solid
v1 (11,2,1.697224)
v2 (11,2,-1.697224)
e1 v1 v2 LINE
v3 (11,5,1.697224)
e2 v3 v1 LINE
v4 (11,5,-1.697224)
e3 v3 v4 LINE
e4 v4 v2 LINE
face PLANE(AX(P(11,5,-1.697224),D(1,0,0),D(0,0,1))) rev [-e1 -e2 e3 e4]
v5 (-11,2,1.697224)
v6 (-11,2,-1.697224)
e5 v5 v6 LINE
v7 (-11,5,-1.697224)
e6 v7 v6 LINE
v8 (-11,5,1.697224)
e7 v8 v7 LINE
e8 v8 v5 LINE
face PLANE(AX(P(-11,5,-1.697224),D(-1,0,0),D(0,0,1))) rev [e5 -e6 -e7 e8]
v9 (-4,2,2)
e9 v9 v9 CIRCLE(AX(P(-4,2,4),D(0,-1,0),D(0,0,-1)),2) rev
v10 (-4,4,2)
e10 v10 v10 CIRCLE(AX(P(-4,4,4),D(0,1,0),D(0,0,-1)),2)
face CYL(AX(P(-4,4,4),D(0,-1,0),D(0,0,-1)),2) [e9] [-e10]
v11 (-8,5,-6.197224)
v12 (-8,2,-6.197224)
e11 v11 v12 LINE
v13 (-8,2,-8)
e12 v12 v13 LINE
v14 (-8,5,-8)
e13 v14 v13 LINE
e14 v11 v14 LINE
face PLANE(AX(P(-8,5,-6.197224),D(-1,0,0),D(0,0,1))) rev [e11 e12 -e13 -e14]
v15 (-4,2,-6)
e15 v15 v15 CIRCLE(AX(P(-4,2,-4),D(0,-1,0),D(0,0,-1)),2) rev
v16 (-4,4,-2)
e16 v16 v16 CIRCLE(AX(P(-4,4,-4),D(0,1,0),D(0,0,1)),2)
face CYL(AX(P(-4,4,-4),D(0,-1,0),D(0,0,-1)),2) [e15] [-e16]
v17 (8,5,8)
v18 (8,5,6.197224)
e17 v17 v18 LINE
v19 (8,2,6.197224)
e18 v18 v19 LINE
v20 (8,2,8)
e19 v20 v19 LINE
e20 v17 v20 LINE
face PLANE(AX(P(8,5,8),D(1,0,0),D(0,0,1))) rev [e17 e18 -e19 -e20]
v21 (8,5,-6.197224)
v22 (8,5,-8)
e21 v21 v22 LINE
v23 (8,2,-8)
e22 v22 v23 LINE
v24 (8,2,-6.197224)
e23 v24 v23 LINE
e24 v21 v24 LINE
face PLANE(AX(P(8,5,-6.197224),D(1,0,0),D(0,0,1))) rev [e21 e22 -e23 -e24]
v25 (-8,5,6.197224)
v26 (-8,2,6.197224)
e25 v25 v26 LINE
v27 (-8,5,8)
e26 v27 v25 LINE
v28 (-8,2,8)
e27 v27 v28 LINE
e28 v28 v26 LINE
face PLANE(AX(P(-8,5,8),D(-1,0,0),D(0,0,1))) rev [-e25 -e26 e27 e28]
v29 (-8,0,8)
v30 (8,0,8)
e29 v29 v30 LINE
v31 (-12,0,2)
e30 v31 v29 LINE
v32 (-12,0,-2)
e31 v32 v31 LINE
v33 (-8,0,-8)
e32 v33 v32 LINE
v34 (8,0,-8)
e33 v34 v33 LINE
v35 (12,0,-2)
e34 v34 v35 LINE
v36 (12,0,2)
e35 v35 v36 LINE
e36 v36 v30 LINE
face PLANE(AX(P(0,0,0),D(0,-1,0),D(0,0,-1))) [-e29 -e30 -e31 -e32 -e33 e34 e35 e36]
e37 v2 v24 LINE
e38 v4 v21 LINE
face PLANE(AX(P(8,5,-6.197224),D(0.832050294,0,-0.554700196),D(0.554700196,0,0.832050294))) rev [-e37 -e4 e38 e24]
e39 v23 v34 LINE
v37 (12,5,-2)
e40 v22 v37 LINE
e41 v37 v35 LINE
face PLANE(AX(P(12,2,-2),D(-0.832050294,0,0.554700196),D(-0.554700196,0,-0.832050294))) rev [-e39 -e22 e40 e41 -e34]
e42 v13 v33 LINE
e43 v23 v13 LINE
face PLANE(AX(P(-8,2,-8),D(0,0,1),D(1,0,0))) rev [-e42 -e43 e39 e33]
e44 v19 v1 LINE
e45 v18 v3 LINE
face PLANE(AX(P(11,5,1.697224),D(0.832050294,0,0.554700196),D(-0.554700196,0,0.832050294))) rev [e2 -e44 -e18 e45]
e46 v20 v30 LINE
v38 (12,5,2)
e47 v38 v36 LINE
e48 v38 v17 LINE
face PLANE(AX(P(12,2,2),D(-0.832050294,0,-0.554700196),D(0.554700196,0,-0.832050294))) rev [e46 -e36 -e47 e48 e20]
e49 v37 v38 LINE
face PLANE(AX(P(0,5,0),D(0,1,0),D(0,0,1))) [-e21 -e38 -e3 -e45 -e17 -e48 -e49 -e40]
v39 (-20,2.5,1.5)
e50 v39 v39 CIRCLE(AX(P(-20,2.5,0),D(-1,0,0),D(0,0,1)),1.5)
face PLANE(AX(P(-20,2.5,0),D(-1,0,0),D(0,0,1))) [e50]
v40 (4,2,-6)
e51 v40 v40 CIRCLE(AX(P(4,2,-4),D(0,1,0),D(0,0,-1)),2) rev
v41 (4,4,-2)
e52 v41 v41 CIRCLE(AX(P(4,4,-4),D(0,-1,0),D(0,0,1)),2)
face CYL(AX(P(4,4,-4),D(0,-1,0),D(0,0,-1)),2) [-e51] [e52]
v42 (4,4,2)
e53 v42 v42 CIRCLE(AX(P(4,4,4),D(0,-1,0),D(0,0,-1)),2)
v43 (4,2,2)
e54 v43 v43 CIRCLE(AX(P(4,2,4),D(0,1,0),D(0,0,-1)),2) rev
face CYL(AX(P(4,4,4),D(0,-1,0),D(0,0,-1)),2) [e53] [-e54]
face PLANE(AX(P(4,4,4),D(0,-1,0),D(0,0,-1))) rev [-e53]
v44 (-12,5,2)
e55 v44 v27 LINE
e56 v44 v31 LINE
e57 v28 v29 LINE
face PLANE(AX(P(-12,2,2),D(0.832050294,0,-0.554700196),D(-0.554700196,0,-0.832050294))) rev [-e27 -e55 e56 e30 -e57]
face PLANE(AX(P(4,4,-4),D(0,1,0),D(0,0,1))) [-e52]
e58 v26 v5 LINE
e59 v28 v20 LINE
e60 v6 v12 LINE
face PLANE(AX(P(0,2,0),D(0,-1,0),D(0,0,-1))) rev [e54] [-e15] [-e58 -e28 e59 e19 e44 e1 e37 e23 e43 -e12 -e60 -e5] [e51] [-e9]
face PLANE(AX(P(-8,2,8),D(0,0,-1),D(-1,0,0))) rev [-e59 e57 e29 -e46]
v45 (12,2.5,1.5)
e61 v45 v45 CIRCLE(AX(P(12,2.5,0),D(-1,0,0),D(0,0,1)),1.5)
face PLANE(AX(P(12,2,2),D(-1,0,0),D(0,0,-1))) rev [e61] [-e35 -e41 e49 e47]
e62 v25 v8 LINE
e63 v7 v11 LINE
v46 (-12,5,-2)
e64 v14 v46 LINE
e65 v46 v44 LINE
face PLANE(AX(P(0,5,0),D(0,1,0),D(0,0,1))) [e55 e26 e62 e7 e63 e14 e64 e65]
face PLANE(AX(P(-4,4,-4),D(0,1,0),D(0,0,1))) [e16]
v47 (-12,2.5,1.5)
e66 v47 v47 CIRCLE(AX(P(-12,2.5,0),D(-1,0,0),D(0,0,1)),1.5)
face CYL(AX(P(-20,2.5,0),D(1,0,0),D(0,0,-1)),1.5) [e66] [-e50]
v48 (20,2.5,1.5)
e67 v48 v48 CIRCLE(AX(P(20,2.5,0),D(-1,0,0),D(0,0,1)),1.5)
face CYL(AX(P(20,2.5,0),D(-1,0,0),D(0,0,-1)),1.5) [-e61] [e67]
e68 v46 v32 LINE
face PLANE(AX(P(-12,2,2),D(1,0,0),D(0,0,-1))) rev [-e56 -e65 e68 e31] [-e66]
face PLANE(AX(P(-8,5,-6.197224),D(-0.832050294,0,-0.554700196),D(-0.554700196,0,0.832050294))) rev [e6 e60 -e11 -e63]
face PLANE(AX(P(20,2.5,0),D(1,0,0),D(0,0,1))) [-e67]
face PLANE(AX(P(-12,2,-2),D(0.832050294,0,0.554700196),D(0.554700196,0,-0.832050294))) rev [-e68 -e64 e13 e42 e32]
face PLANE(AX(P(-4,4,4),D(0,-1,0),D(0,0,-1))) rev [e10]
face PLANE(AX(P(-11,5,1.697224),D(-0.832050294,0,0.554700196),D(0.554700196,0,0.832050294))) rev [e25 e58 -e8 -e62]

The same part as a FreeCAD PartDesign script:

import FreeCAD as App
import Part
import Sketcher
from FreeCAD import Vector

doc = App.newDocument("Part")
body = doc.addObject("PartDesign::Body", "Body")

# Sketch on XZ plane
sketch1 = body.newObject("Sketcher::SketchObject", "Sketch")
sketch1.AttachmentSupport = (doc.getObject("XZ_Plane"), [""])
sketch1.MapMode = "FlatFace"
sketch1.addGeometry([
    Part.LineSegment(Vector(-12, -2, 0), Vector(-12, 2, 0)),  # 0
    Part.LineSegment(Vector(-12, 2, 0), Vector(-8, 8, 0)),  # 1
    Part.LineSegment(Vector(-8, 8, 0), Vector(0, 8, 0)),  # 2
    Part.LineSegment(Vector(0, 8, 0), Vector(0, -8, 0)),  # 3
    Part.LineSegment(Vector(0, -8, 0), Vector(-8, -8, 0)),  # 4
    Part.LineSegment(Vector(-8, -8, 0), Vector(-12, -2, 0)),  # 5
], False)
sketch1.addConstraint([
    Sketcher.Constraint("Coincident", 0, 2, 1, 1),
    Sketcher.Constraint("Coincident", 1, 2, 2, 1),
    Sketcher.Constraint("Coincident", 2, 2, 3, 1),
    Sketcher.Constraint("Coincident", 3, 2, 4, 1),
    Sketcher.Constraint("Coincident", 4, 2, 5, 1),
    Sketcher.Constraint("Coincident", 5, 2, 0, 1),
    Sketcher.Constraint("Vertical", 0),
    Sketcher.Constraint("Horizontal", 2),
    Sketcher.Constraint("Vertical", 3),
    Sketcher.Constraint("Horizontal", 4),
    Sketcher.Constraint("Symmetric", 2, 2, 3, 2, -1, 1),
    Sketcher.Constraint("Vertical", 1, 2, 4, 2),
    Sketcher.Constraint("Equal", 1, 5),
    Sketcher.Constraint("DistanceX", 2, 1, 2, 2, 8.0),
    Sketcher.Constraint("DistanceY", 0, 1, 0, 2, 4.0),
    Sketcher.Constraint("DistanceY", 3, 2, 3, 1, 16.0),
    Sketcher.Constraint("DistanceX", 0, 2, -1, 1, 12.0),
])
pad1 = body.newObject("PartDesign::Pad", "Pad")
pad1.Profile = sketch1
pad1.Length = 2
pad1.Reversed = True

# Sketch on XZ plane
sketch2 = body.newObject("Sketcher::SketchObject", "Sketch001")
sketch2.AttachmentSupport = (doc.getObject("XZ_Plane"), [""])
sketch2.MapMode = "FlatFace"
sketch2.AttachmentOffset = App.Placement(Vector(0, 0, -2), App.Rotation())
sketch2.addGeometry([
    Part.Circle(Vector(-4, -4, 0), Vector(0, 0, 1), 2),
    Part.Circle(Vector(-4, 4, 0), Vector(0, 0, 1), 2),
], False)
sketch2.addConstraint([
    Sketcher.Constraint("Equal", 0, 1),
    Sketcher.Constraint("Symmetric", 0, 3, 1, 3, -1),
    Sketcher.Constraint("Diameter", 0, 4.0),
    Sketcher.Constraint("DistanceX", 0, 3, -1, 1, 4.0),
    Sketcher.Constraint("DistanceY", 0, 3, -1, 1, 4.0),
])
pad2 = body.newObject("PartDesign::Pad", "Pad001")
pad2.Profile = sketch2
pad2.Length = 2
pad2.Reversed = True

# Sketch on XZ plane
sketch3 = body.newObject("Sketcher::SketchObject", "Sketch002")
sketch3.AttachmentSupport = (doc.getObject("XZ_Plane"), [""])
sketch3.MapMode = "FlatFace"
sketch3.AttachmentOffset = App.Placement(Vector(0, 0, -2), App.Rotation())
sketch3.addGeometry([
    Part.LineSegment(Vector(-12, 2, 0), Vector(-8, 8, 0)),  # 0
    Part.LineSegment(Vector(-8, 8, 0), Vector(-8, 6.2, 0)),  # 1
    Part.LineSegment(Vector(-8, 6.2, 0), Vector(-11, 1.7, 0)),  # 2
    Part.LineSegment(Vector(-11, 1.7, 0), Vector(-11, -1.7, 0)),  # 3
    Part.LineSegment(Vector(-11, -1.7, 0), Vector(-8, -6.2, 0)),  # 4
    Part.LineSegment(Vector(-8, -6.2, 0), Vector(-8, -8, 0)),  # 5
    Part.LineSegment(Vector(-8, -8, 0), Vector(-12, -2, 0)),  # 6
    Part.LineSegment(Vector(-12, -2, 0), Vector(-12, 2, 0)),  # 7
], False)
sketch3.addConstraint([
    Sketcher.Constraint("Coincident", 0, 2, 1, 1),
    Sketcher.Constraint("Coincident", 1, 2, 2, 1),
    Sketcher.Constraint("Coincident", 2, 2, 3, 1),
    Sketcher.Constraint("Coincident", 3, 2, 4, 1),
    Sketcher.Constraint("Coincident", 4, 2, 5, 1),
    Sketcher.Constraint("Coincident", 5, 2, 6, 1),
    Sketcher.Constraint("Coincident", 6, 2, 7, 1),
    Sketcher.Constraint("Coincident", 7, 2, 0, 1),
    Sketcher.Constraint("Vertical", 1),
    Sketcher.Constraint("Vertical", 3),
    Sketcher.Constraint("Vertical", 5),
    Sketcher.Constraint("Vertical", 7),
    Sketcher.Constraint("Symmetric", 1, 2, 4, 2, -1),
    Sketcher.Constraint("Parallel", 0, 2),
    Sketcher.Constraint("Parallel", 4, 6),
    Sketcher.Constraint("Equal", 1, 5),
    Sketcher.Constraint("Equal", 2, 4),
    Sketcher.Constraint("DistanceY", 7, 1, 7, 2, 4.0),
    Sketcher.Constraint("DistanceX", 0, 2, -1, 1, 8.0),
    Sketcher.Constraint("DistanceY", -1, 1, 0, 2, 8.0),
    Sketcher.Constraint("DistanceX", 2, 2, -1, 1, 11.0),
    Sketcher.Constraint("DistanceX", 6, 2, -1, 1, 12.0),
    Sketcher.Constraint("DistanceY", 3, 2, 3, 1, 3.394449),
])
pad3 = body.newObject("PartDesign::Pad", "Pad002")
pad3.Profile = sketch3
pad3.Length = 3
pad3.Reversed = True

# Sketch on YZ plane
sketch4 = body.newObject("Sketcher::SketchObject", "Sketch003")
sketch4.AttachmentSupport = (doc.getObject("YZ_Plane"), [""])
sketch4.MapMode = "FlatFace"
sketch4.AttachmentOffset = App.Placement(Vector(0, 0, -12), App.Rotation())
sketch4.addGeometry(Part.Circle(Vector(2.5, 0, 0), Vector(0, 0, 1), 1.5), False)
sketch4.addConstraint([
    Sketcher.Constraint("PointOnObject", 0, 3, -1),
    Sketcher.Constraint("Diameter", 0, 3.0),
    Sketcher.Constraint("DistanceX", -1, 1, 0, 3, 2.5),
])
pad4 = body.newObject("PartDesign::Pad", "Pad003")
pad4.Profile = sketch4
pad4.Length = 8
pad4.Reversed = True
body2 = doc.addObject("PartDesign::Body", "Body001")
doc.recompute()

body2.BaseFeature = body
doc.recompute()

mirroring = doc.addObject("Part::Mirroring", "Mirroring")
mirroring.Source = body
mirroring.Base = Vector(0, 0, 0)
mirroring.Normal = Vector(1, 0, 0)
body3 = doc.addObject("PartDesign::Body", "Body002")
body3.BaseFeature = mirroring
boolean = body2.newObject("PartDesign::Boolean", "Boolean")
boolean.Type = "Fuse"
boolean.addObjects([body3])
doc.recompute()
mirroring.Visibility = False

doc.recompute()
